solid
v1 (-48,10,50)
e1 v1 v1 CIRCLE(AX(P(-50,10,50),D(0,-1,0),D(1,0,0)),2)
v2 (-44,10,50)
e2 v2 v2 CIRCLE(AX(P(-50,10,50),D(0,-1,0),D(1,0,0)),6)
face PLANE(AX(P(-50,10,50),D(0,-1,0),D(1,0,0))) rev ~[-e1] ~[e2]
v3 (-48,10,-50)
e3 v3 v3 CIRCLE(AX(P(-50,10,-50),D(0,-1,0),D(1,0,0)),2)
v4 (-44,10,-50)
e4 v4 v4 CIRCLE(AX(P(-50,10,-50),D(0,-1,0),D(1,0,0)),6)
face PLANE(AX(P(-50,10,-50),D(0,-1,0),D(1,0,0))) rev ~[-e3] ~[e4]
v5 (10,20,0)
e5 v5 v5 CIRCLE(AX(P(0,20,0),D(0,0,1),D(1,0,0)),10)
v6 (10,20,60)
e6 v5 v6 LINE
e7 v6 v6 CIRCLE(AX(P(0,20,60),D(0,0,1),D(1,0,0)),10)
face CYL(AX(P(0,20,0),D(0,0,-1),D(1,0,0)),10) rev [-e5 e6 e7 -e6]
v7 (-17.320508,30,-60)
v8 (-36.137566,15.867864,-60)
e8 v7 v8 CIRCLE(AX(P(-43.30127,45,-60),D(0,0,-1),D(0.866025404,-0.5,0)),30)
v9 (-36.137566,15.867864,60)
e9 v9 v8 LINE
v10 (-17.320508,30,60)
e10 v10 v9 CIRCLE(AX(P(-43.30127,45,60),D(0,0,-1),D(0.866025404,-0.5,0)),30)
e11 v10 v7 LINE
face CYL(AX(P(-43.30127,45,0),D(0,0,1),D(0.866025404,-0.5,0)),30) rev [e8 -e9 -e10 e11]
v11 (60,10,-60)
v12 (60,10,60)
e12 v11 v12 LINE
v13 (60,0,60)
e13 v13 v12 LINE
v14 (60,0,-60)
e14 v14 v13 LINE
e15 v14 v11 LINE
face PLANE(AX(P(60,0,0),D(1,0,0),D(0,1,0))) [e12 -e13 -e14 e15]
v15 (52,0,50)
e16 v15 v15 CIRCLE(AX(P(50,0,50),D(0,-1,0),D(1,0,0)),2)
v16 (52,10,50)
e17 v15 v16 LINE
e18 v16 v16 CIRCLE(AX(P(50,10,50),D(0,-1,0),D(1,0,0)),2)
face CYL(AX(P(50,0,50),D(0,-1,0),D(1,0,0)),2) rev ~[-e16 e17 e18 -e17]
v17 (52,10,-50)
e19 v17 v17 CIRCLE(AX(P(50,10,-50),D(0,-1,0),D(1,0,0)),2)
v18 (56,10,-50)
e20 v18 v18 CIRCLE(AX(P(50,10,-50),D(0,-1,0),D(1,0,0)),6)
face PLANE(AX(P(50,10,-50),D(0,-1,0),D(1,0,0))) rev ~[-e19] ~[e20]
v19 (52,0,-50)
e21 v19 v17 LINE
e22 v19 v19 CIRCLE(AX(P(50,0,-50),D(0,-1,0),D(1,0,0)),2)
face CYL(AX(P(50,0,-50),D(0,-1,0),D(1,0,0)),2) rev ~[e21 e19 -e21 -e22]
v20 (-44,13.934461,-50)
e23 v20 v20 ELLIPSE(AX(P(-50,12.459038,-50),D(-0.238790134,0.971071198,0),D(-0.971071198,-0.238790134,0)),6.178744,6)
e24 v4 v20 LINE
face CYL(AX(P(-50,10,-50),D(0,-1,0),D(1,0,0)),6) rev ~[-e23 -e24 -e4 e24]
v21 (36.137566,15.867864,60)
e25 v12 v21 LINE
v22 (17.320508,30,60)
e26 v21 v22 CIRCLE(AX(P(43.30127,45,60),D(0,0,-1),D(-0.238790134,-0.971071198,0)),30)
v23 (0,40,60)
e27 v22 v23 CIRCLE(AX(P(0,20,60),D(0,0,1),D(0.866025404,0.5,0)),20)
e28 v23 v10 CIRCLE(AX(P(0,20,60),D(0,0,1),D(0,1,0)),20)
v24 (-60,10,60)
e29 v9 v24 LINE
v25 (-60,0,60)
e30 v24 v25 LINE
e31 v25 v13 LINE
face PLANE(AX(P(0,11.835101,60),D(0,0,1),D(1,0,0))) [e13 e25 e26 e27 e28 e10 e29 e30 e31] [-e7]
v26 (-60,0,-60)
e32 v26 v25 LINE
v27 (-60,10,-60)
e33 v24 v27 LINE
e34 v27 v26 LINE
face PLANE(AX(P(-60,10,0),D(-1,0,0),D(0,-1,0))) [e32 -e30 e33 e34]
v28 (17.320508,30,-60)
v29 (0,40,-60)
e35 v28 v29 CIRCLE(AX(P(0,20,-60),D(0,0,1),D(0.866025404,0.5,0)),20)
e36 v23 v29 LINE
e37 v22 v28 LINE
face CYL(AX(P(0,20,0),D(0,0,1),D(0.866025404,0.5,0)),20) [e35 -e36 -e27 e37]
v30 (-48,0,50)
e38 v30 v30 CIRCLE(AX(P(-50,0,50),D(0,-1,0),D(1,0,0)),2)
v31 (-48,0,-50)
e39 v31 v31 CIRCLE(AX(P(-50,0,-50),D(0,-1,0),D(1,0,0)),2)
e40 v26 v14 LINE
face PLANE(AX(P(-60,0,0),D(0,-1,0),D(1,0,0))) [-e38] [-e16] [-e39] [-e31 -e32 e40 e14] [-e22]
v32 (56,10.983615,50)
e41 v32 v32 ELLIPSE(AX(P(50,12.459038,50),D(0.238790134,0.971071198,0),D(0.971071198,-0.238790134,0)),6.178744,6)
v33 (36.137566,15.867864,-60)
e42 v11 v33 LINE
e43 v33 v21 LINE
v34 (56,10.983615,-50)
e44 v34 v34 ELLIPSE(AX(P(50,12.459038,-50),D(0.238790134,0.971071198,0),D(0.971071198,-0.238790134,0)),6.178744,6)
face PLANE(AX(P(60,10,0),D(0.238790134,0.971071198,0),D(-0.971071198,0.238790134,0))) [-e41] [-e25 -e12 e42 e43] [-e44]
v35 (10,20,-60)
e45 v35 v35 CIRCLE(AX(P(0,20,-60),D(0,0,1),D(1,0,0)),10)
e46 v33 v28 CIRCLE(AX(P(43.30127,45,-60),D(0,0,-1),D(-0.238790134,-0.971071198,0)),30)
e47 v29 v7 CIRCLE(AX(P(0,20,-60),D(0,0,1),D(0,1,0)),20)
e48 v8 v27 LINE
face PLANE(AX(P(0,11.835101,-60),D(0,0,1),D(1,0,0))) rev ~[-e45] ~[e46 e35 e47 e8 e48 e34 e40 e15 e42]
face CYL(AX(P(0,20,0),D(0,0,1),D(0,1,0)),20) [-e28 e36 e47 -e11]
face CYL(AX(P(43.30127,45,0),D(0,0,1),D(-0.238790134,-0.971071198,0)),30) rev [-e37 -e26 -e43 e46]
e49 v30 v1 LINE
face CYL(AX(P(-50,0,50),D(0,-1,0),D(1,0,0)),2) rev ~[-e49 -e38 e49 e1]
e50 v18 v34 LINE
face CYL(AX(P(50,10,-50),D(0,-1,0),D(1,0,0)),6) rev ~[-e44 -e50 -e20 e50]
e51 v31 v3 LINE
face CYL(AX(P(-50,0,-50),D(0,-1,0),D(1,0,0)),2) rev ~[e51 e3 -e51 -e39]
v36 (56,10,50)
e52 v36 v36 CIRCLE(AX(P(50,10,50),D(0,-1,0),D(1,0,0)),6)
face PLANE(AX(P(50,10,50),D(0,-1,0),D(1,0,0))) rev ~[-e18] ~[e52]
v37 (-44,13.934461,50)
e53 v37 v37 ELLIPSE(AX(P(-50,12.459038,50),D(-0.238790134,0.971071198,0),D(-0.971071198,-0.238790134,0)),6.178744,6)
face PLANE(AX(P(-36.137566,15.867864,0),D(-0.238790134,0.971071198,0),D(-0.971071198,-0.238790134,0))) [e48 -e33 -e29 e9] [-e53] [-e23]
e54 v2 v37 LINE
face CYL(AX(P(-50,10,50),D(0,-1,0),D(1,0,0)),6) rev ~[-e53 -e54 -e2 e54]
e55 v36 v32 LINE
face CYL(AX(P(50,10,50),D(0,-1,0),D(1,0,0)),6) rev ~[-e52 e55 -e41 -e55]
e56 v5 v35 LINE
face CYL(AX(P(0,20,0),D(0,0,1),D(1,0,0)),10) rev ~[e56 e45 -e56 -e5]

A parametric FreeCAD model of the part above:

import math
import FreeCAD as App
import Part
import Sketcher
from FreeCAD import Vector

doc = App.newDocument("Part")
body = doc.addObject("PartDesign::Body", "Body")

sketch1 = doc.addObject("Sketcher::SketchObject", "Sketch")
body.addObject(sketch1)
sketch1.AttachmentSupport = (doc.XY_Plane, [""])
sketch1.MapMode = "FlatFace"
sketch1.addGeometry(Part.LineSegment(Vector(-60, 10, 0), Vector(-60, 0, 0)), False)
sketch1.addGeometry(Part.LineSegment(Vector(-60, 0, 0), Vector(60, 0, 0)), False)
sketch1.addGeometry(Part.LineSegment(Vector(60, 0, 0), Vector(60, 10, 0)), False)
sketch1.addGeometry(Part.LineSegment(Vector(60, 10, 0), Vector(36.137566, 15.867864, 0)), False)
sketch1.addGeometry(Part.ArcOfCircle(Part.Circle(Vector(43.30127, 45, 0), Vector(0, 0, 1), 30), math.radians(-150), math.radians(-103.815144)), False)
sketch1.addGeometry(Part.ArcOfCircle(Part.Circle(Vector(0, 20, 0), Vector(0, 0, 1), 20), math.radians(30), math.radians(90)), False)
sketch1.addGeometry(Part.ArcOfCircle(Part.Circle(Vector(0, 20, 0), Vector(0, 0, 1), 20), math.radians(90), math.radians(150)), False)
sketch1.addGeometry(Part.ArcOfCircle(Part.Circle(Vector(-43.30127, 45, 0), Vector(0, 0, 1), 30), math.radians(-76.184856), math.radians(-30)), False)
sketch1.addGeometry(Part.LineSegment(Vector(-36.137566, 15.867864, 0), Vector(-60, 10, 0)), False)
sketch1.addGeometry(Part.Circle(Vector(0, 20, 0), Vector(0, 0, 1), 10), False)
sketch1.addConstraint(Sketcher.Constraint("Coincident", 0, 2, 1, 1))
sketch1.addConstraint(Sketcher.Constraint("Coincident", 1, 2, 2, 1))
sketch1.addConstraint(Sketcher.Constraint("Coincident", 2, 2, 3, 1))
sketch1.addConstraint(Sketcher.Constraint("Tangent", 3, 2, 4, 2))
sketch1.addConstraint(Sketcher.Constraint("Tangent", 4, 1, 5, 1))
sketch1.addConstraint(Sketcher.Constraint("Tangent", 5, 2, 6, 1))
sketch1.addConstraint(Sketcher.Constraint("Tangent", 6, 2, 7, 2))
sketch1.addConstraint(Sketcher.Constraint("Tangent", 7, 1, 8, 1))
sketch1.addConstraint(Sketcher.Constraint("Coincident", 8, 2, 0, 1))
sketch1.addConstraint(Sketcher.Constraint("Vertical", 0))
sketch1.addConstraint(Sketcher.Constraint("Horizontal", 1))
sketch1.addConstraint(Sketcher.Constraint("Vertical", 2))
sketch1.addConstraint(Sketcher.Constraint("Coincident", 9, 3, 5, 3))
sketch1.addConstraint(Sketcher.Constraint("Equal", 5, 6))
sketch1.addConstraint(Sketcher.Constraint("Equal", 4, 7))
sketch1.addConstraint(Sketcher.Constraint("Symmetric", 0, 2, 1, 2, -1, 1))
sketch1.addConstraint(Sketcher.Constraint("Symmetric", 4, 3, 7, 3, -2))
sketch1.addConstraint(Sketcher.Constraint("PointOnObject", 5, 2, -2))
sketch1.addConstraint(Sketcher.Constraint("Horizontal", 3, 2, 7, 1))
sketch1.addConstraint(Sketcher.Constraint("Diameter", 9, 20.0))
sketch1.addConstraint(Sketcher.Constraint("Radius", 4, 30.0))
sketch1.addConstraint(Sketcher.Constraint("Radius", 5, 20.0))
sketch1.addConstraint(Sketcher.Constraint("DistanceX", 1, 1, 1, 2, 120.0))
sketch1.addConstraint(Sketcher.Constraint("DistanceY", 0, 2, 0, 1, 10.0))
sketch1.addConstraint(Sketcher.Constraint("DistanceY", -1, 1, 4, 3, 45.0))
sketch1.addConstraint(Sketcher.Constraint("DistanceY", -1, 1, 5, 3, 20.0))
pad1 = doc.addObject("PartDesign::Pad", "Pad")
body.addObject(pad1)
pad1.Profile = sketch1
pad1.Type = "TwoLengths"
pad1.Length = 60
pad1.Length2 = 60

sketch2 = doc.addObject("Sketcher::SketchObject", "Sketch001")
body.addObject(sketch2)
sketch2.AttachmentSupport = (doc.XZ_Plane, [""])
sketch2.MapMode = "FlatFace"
sketch2.addGeometry(Part.Circle(Vector(-50, 50, 0), Vector(0, 0, 1), 2), False)
sketch2.addGeometry(Part.Circle(Vector(50, 50, 0), Vector(0, 0, 1), 2), False)
sketch2.addGeometry(Part.Circle(Vector(-50, -50, 0), Vector(0, 0, 1), 2), False)
sketch2.addGeometry(Part.Circle(Vector(50, -50, 0), Vector(0, 0, 1), 2), False)
sketch2.addConstraint(Sketcher.Constraint("Equal", 0, 1))
sketch2.addConstraint(Sketcher.Constraint("Equal", 1, 2))
sketch2.addConstraint(Sketcher.Constraint("Equal", 2, 3))
sketch2.addConstraint(Sketcher.Constraint("Symmetric", 1, 3, 2, 3, -1, 1))
sketch2.addConstraint(Sketcher.Constraint("Symmetric", 0, 3, 3, 3, -1, 1))
sketch2.addConstraint(Sketcher.Constraint("Symmetric", 0, 3, 1, 3, -2))
sketch2.addConstraint(Sketcher.Constraint("Diameter", 0, 4.0))
sketch2.addConstraint(Sketcher.Constraint("DistanceX", 0, 3, -1, 1, 50.0))
sketch2.addConstraint(Sketcher.Constraint("DistanceY", -1, 1, 0, 3, 50.0))
pocket1 = doc.addObject("PartDesign::Pocket", "Pocket")
body.addObject(pocket1)
pocket1.Profile = sketch2
pocket1.Length = 25

sketch3 = doc.addObject("Sketcher::SketchObject", "Sketch002")
body.addObject(sketch3)
sketch3.AttachmentSupport = (doc.XZ_Plane, [""])
sketch3.MapMode = "FlatFace"
sketch3.AttachmentOffset = App.Placement(Vector(0, 0, -10), App.Rotation())
sketch3.addGeometry(Part.Circle(Vector(-50, 50, 0), Vector(0, 0, 1), 6), False)
sketch3.addGeometry(Part.Circle(Vector(50, -50, 0), Vector(0, 0, 1), 6), False)
sketch3.addGeometry(Part.Circle(Vector(-50, -50, 0), Vector(0, 0, 1), 6), False)
sketch3.addGeometry(Part.Circle(Vector(50, 50, 0), Vector(0, 0, 1), 6), False)
sketch3.addConstraint(Sketcher.Constraint("Equal", 0, 1))
sketch3.addConstraint(Sketcher.Constraint("Equal", 1, 2))
sketch3.addConstraint(Sketcher.Constraint("Equal", 2, 3))
sketch3.addConstraint(Sketcher.Constraint("Symmetric", 0, 3, 1, 3, -1, 1))
sketch3.addConstraint(Sketcher.Constraint("Symmetric", 2, 3, 3, 3, -1, 1))
sketch3.addConstraint(Sketcher.Constraint("Symmetric", 1, 3, 2, 3, -2))
sketch3.addConstraint(Sketcher.Constraint("Diameter", 0, 12.0))
sketch3.addConstraint(Sketcher.Constraint("DistanceX", 0, 3, -1, 1, 50.0))
sketch3.addConstraint(Sketcher.Constraint("DistanceY", -1, 1, 0, 3, 50.0))
pocket2 = doc.addObject("PartDesign::Pocket", "Pocket001")
body.addObject(pocket2)
pocket2.Profile = sketch3
pocket2.Length = 15

doc.recompute()
